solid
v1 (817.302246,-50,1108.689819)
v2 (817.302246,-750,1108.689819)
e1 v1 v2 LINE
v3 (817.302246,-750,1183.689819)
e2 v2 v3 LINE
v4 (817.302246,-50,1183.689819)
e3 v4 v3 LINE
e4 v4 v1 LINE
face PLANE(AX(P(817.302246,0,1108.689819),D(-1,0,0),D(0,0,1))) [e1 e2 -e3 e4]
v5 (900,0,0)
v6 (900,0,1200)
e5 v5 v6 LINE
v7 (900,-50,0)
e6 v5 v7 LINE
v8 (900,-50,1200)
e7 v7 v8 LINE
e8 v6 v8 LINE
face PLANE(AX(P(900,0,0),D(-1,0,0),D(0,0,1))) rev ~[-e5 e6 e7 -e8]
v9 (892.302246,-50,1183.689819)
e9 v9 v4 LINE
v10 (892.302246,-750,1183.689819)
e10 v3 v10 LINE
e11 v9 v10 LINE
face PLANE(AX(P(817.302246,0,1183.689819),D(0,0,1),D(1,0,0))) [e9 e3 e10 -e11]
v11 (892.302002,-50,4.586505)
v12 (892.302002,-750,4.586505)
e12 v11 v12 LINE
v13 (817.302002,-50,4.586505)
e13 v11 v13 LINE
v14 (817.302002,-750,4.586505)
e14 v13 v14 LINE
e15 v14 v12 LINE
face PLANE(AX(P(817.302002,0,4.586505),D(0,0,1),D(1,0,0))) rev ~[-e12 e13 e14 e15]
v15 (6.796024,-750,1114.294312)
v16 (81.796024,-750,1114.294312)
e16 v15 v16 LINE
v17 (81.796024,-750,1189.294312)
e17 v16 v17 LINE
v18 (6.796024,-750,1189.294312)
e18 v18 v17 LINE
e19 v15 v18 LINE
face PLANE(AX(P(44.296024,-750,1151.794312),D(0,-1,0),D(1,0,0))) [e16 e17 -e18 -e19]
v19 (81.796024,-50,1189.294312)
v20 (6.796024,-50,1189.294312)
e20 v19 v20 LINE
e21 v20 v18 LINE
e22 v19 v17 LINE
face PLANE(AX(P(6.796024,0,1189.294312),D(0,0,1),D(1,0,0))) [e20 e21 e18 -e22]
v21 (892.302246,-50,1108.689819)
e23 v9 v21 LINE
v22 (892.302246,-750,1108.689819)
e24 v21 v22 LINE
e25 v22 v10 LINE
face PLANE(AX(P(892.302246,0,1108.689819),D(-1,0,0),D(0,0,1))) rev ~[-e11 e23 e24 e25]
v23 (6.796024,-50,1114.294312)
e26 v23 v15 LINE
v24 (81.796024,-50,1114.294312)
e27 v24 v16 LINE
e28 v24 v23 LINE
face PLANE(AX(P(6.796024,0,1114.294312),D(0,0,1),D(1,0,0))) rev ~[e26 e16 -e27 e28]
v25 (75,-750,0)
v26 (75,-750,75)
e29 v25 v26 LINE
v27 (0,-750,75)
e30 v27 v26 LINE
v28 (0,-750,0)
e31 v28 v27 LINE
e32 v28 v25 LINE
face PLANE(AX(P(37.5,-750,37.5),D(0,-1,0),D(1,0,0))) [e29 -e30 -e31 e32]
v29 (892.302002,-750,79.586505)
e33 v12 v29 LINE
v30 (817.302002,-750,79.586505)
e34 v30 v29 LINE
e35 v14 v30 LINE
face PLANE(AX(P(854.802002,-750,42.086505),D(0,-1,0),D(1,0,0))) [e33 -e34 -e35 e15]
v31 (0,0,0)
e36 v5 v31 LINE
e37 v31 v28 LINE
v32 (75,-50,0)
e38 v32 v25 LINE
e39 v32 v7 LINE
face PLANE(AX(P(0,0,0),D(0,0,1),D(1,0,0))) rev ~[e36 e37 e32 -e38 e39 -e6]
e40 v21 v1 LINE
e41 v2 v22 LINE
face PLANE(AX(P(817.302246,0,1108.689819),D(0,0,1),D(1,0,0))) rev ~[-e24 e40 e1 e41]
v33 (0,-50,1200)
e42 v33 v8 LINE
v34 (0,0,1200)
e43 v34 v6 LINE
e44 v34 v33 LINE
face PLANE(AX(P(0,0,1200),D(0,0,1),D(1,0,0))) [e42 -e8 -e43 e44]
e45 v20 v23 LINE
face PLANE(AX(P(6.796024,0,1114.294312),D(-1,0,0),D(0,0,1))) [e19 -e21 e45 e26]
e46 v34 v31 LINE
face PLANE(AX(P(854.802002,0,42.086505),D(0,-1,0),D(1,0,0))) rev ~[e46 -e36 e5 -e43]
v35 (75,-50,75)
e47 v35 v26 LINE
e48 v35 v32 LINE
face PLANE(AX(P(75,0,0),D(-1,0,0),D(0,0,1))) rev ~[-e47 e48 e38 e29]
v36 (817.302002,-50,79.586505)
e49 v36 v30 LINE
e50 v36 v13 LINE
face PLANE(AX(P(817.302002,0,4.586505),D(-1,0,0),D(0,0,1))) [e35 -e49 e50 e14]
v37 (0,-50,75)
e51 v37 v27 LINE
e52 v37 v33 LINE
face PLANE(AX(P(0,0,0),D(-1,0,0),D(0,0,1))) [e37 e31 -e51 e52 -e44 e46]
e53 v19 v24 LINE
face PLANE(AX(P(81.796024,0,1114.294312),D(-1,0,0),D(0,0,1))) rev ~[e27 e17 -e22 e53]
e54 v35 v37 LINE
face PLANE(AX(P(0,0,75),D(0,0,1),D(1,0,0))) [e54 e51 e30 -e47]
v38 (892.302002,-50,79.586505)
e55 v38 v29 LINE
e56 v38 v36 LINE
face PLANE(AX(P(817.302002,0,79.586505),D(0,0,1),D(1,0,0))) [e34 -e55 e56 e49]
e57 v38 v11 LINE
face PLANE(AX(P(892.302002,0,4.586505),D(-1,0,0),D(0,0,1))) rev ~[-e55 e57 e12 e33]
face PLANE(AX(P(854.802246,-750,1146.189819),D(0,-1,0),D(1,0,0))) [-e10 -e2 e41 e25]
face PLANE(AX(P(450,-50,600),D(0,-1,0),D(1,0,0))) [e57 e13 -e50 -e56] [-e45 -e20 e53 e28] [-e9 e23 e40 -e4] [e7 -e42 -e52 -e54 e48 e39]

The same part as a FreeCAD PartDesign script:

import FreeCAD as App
import Part
import Sketcher

V = App.Vector
Q = App.Units.Quantity


def add_polygon(sketch, points):
    """Adds a closed chain of lines whose ends are joined by coincident constraints."""
    first, n = sketch.GeometryCount, len(points)
    for a, b in zip(points, points[1:] + points[:1]):
        sketch.addGeometry(Part.LineSegment(App.Vector(*a, 0), App.Vector(*b, 0)), False)
    for i in range(n):
        sketch.addConstraint(Sketcher.Constraint("Coincident", first + i, 2, first + (i + 1) % n, 1))

doc = App.newDocument("Part")
params = doc.addObject("Spreadsheet::Sheet", "Params")
for row, (alias, value) in enumerate([
    ("sketch1_width", "900 mm"),
    ("sketch1_height", "1200 mm"),
    ("pad1_length", "50 mm"),
    ("sketch2_width", "75 mm"),
    ("pad2_length", "750 mm"),
    ("sketch3_width", "75 mm"),
    ("pad3_length", "750 mm"),
    ("sketch4_width", "75 mm"),
    ("pad4_length", "750 mm"),
    ("sketch5_width", "75 mm"),
    ("pad5_length", "750 mm"),
], start=1):
    params.set(f"A{row}", alias)
    params.set(f"B{row}", "=" + value)
    params.setAlias(f"B{row}", alias)

body = doc.addObject("PartDesign::Body", "Body")

sketch1 = body.newObject("Sketcher::SketchObject", "Sketch")
sketch1.AttachmentSupport = (doc.getObject("XZ_Plane"), [""])
sketch1.MapMode = "FlatFace"
add_polygon(sketch1, [(0, 1200), (0, 0), (900, 0), (900, 1200)])
sketch1.addConstraint(Sketcher.Constraint("Vertical", 0))
sketch1.addConstraint(Sketcher.Constraint("Horizontal", 1))
sketch1.addConstraint(Sketcher.Constraint("Vertical", 2))
sketch1.addConstraint(Sketcher.Constraint("Horizontal", 3))
sketch1.addConstraint(Sketcher.Constraint("Coincident", 0, 2, -1, 1))
sketch1.addConstraint(Sketcher.Constraint("DistanceX", 1, 1, 1, 2, Q("900 mm")))
sketch1.addConstraint(Sketcher.Constraint("DistanceY", 0, 2, 0, 1, Q("1200 mm")))
sketch1.setExpression("Constraints[9]", "Params.sketch1_width")
sketch1.setExpression("Constraints[10]", "Params.sketch1_height")
pad1 = body.newObject("PartDesign::Pad", "Pad")
pad1.Profile = sketch1
pad1.setExpression("Length", "Params.pad1_length")

sketch2 = body.newObject("Sketcher::SketchObject", "Sketch001")
sketch2.AttachmentSupport = (doc.getObject("XZ_Plane"), [""])
sketch2.MapMode = "FlatFace"
add_polygon(sketch2, [(0, 75), (0, 0), (75, 0), (75, 75)])
sketch2.addConstraint(Sketcher.Constraint("Vertical", 0))
sketch2.addConstraint(Sketcher.Constraint("Horizontal", 1))
sketch2.addConstraint(Sketcher.Constraint("Vertical", 2))
sketch2.addConstraint(Sketcher.Constraint("Horizontal", 3))
sketch2.addConstraint(Sketcher.Constraint("Coincident", 0, 2, -1, 1))
sketch2.addConstraint(Sketcher.Constraint("Equal", 3, 0))
sketch2.addConstraint(Sketcher.Constraint("DistanceX", 1, 1, 1, 2, Q("75 mm")))
sketch2.setExpression("Constraints[10]", "Params.sketch2_width")
pad2 = body.newObject("PartDesign::Pad", "Pad001")
pad2.Profile = sketch2
pad2.setExpression("Length", "Params.pad2_length")

sketch3 = body.newObject("Sketcher::SketchObject", "Sketch002")
sketch3.AttachmentSupport = (doc.getObject("XZ_Plane"), [""])
sketch3.MapMode = "FlatFace"
add_polygon(sketch3, [(7, 1189), (7, 1114), (82, 1114), (82, 1189)])
sketch3.addConstraint(Sketcher.Constraint("Vertical", 0))
sketch3.addConstraint(Sketcher.Constraint("Horizontal", 1))
sketch3.addConstraint(Sketcher.Constraint("Vertical", 2))
sketch3.addConstraint(Sketcher.Constraint("Horizontal", 3))
sketch3.addConstraint(Sketcher.Constraint("Equal", 3, 0))
sketch3.addConstraint(Sketcher.Constraint("DistanceX", 1, 1, 1, 2, Q("75 mm")))
sketch3.addConstraint(Sketcher.Constraint("DistanceY", -1, 1, 0, 2, Q("1114.294312 mm")))
sketch3.addConstraint(Sketcher.Constraint("DistanceX", -1, 1, 0, 2, Q("6.796024 mm")))
sketch3.setExpression("Constraints[9]", "Params.sketch3_width")
pad3 = body.newObject("PartDesign::Pad", "Pad002")
pad3.Profile = sketch3
pad3.setExpression("Length", "Params.pad3_length")

sketch4 = body.newObject("Sketcher::SketchObject", "Sketch003")
sketch4.AttachmentSupport = (doc.getObject("XZ_Plane"), [""])
sketch4.MapMode = "FlatFace"
add_polygon(sketch4, [(817, 1184), (817, 1109), (892, 1109), (892, 1184)])
sketch4.addConstraint(Sketcher.Constraint("Vertical", 0))
sketch4.addConstraint(Sketcher.Constraint("Horizontal", 1))
sketch4.addConstraint(Sketcher.Constraint("Vertical", 2))
sketch4.addConstraint(Sketcher.Constraint("Horizontal", 3))
sketch4.addConstraint(Sketcher.Constraint("Equal", 3, 0))
sketch4.addConstraint(Sketcher.Constraint("DistanceX", 1, 1, 1, 2, Q("75 mm")))
sketch4.addConstraint(Sketcher.Constraint("DistanceY", -1, 1, 0, 2, Q("1108.689819 mm")))
sketch4.addConstraint(Sketcher.Constraint("DistanceX", -1, 1, 0, 2, Q("817.302246 mm")))
sketch4.setExpression("Constraints[9]", "Params.sketch4_width")
pad4 = body.newObject("PartDesign::Pad", "Pad003")
pad4.Profile = sketch4
pad4.setExpression("Length", "Params.pad4_length")

sketch5 = body.newObject("Sketcher::SketchObject", "Sketch004")
sketch5.AttachmentSupport = (doc.getObject("XZ_Plane"), [""])
sketch5.MapMode = "FlatFace"
add_polygon(sketch5, [(817, 80), (817, 5), (892, 5), (892, 80)])
sketch5.addConstraint(Sketcher.Constraint("Vertical", 0))
sketch5.addConstraint(Sketcher.Constraint("Horizontal", 1))
sketch5.addConstraint(Sketcher.Constraint("Vertical", 2))
sketch5.addConstraint(Sketcher.Constraint("Horizontal", 3))
sketch5.addConstraint(Sketcher.Constraint("Equal", 3, 0))
sketch5.addConstraint(Sketcher.Constraint("DistanceX", 1, 1, 1, 2, Q("75 mm")))
sketch5.addConstraint(Sketcher.Constraint("DistanceX", -1, 1, 0, 2, Q("817.302002 mm")))
sketch5.addConstraint(Sketcher.Constraint("DistanceY", -1, 1, 0, 2, Q("4.586505 mm")))
sketch5.setExpression("Constraints[9]", "Params.sketch5_width")
pad5 = body.newObject("PartDesign::Pad", "Pad004")
pad5.Profile = sketch5
pad5.setExpression("Length", "Params.pad5_length")

doc.recompute()
